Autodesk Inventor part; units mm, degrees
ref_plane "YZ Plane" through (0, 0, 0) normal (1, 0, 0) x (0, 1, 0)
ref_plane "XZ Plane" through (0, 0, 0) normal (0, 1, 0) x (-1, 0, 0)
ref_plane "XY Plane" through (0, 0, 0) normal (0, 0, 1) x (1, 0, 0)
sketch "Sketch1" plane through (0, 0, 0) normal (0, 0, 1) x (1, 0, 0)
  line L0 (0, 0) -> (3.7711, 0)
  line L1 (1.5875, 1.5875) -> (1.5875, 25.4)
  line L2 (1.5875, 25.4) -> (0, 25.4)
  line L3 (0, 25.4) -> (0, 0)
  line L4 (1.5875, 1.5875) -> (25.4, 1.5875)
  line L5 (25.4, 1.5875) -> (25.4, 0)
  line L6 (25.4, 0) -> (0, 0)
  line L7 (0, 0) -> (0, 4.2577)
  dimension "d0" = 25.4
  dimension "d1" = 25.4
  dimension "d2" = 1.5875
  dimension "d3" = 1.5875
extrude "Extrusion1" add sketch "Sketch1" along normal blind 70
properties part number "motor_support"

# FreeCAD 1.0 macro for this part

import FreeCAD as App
import Part
import Sketcher
from FreeCAD import Vector
Q = App.Units.Quantity

doc = App.newDocument("Part")
body = doc.addObject("PartDesign::Body", "Body")

# Sketch on XY plane
sketch1 = body.newObject("Sketcher::SketchObject", "Sketch")
sketch1.AttachmentSupport = (doc.getObject("XY_Plane"), [""])
sketch1.MapMode = "FlatFace"
sketch1.addGeometry([
    Part.LineSegment(Vector(0, 25.4, 0), Vector(0, 0, 0)),  # 0
    Part.LineSegment(Vector(0, 0, 0), Vector(25.4, 0, 0)),  # 1
    Part.LineSegment(Vector(25.4, 0, 0), Vector(25.4, 1.6, 0)),  # 2
    Part.LineSegment(Vector(25.4, 1.6, 0), Vector(1.6, 1.6, 0)),  # 3
    Part.LineSegment(Vector(1.6, 1.6, 0), Vector(1.6, 25.4, 0)),  # 4
    Part.LineSegment(Vector(1.6, 25.4, 0), Vector(0, 25.4, 0)),  # 5
], False)
sketch1.addConstraint([
    Sketcher.Constraint("Coincident", 0, 2, 1, 1),
    Sketcher.Constraint("Coincident", 1, 2, 2, 1),
    Sketcher.Constraint("Coincident", 2, 2, 3, 1),
    Sketcher.Constraint("Coincident", 3, 2, 4, 1),
    Sketcher.Constraint("Coincident", 4, 2, 5, 1),
    Sketcher.Constraint("Coincident", 5, 2, 0, 1),
    Sketcher.Constraint("Vertical", 0),
    Sketcher.Constraint("Horizontal", 1),
    Sketcher.Constraint("Vertical", 2),
    Sketcher.Constraint("Horizontal", 3),
    Sketcher.Constraint("Vertical", 4),
    Sketcher.Constraint("Horizontal", 5),
    Sketcher.Constraint("Coincident", 0, 2, -1, 1),
    Sketcher.Constraint("Equal", 1, 0),
    Sketcher.Constraint("Equal", 5, 2),
    Sketcher.Constraint("DistanceX", 1, 1, 1, 2, Q("1 in")),
    Sketcher.Constraint("DistanceX", 5, 2, 5, 1, Q("0.0625 in")),
])
pad1 = body.newObject("PartDesign::Pad", "Pad")
pad1.Profile = sketch1
pad1.Length = Q("2.7559055 in")

doc.recompute()
